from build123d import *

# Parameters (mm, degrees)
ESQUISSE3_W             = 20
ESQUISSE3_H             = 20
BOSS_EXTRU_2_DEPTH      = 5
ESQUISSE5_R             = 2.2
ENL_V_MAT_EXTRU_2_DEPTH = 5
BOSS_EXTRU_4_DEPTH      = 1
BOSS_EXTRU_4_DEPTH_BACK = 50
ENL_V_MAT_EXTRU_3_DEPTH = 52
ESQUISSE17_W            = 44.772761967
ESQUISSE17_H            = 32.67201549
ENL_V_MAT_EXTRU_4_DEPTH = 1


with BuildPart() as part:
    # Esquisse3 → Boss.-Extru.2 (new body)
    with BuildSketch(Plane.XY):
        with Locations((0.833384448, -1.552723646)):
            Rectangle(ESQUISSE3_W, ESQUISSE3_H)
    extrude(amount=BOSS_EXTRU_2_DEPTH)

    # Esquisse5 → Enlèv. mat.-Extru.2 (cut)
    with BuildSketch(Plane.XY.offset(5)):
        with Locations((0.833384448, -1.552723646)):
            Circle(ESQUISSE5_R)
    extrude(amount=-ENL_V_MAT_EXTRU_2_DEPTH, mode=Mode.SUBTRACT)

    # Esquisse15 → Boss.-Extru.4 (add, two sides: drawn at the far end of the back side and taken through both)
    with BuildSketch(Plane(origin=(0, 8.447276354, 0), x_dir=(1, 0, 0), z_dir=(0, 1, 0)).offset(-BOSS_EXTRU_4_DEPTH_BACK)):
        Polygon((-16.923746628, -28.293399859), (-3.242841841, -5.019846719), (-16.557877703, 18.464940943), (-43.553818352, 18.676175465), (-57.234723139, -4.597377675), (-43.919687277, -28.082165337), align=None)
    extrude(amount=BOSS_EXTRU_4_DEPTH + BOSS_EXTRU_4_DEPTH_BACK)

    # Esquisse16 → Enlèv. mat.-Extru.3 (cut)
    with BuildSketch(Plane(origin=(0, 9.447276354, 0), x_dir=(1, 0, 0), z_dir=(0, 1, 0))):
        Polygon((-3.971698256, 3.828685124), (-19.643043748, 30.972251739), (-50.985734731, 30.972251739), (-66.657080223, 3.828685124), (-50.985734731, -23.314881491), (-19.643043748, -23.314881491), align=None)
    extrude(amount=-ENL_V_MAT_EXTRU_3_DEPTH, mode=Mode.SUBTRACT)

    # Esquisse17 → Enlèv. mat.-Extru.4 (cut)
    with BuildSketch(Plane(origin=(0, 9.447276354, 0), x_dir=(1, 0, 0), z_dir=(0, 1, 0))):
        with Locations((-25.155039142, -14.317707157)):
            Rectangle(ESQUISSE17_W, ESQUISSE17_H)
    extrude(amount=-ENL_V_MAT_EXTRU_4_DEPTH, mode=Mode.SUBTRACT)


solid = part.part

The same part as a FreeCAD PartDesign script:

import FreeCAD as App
import Part
import Sketcher
from FreeCAD import Vector
Q = App.Units.Quantity


def add_polygon(sketch, points):
    """Adds a closed chain of lines whose ends are joined by coincident constraints."""
    first, n = sketch.GeometryCount, len(points)
    for a, b in zip(points, points[1:] + points[:1]):
        sketch.addGeometry(Part.LineSegment(App.Vector(*a, 0), App.Vector(*b, 0)), False)
    for i in range(n):
        sketch.addConstraint(Sketcher.Constraint("Coincident", first + i, 2, first + (i + 1) % n, 1))

doc = App.newDocument("Part")
body = doc.addObject("PartDesign::Body", "Body")

sketch1 = doc.addObject("Sketcher::SketchObject", "Sketch")
body.addObject(sketch1)
sketch1.AttachmentSupport = (doc.XY_Plane, [""])
sketch1.MapMode = "FlatFace"
add_polygon(sketch1, [(-9, 8), (-9, -12), (11, -12), (11, 8)])
sketch1.addConstraint([
    Sketcher.Constraint("Vertical", 0),
    Sketcher.Constraint("Horizontal", 1),
    Sketcher.Constraint("Vertical", 2),
    Sketcher.Constraint("Horizontal", 3),
    Sketcher.Constraint("Equal", 3, 0),
    Sketcher.Constraint("DistanceX", 1, 1, 1, 2, Q("20 mm")),
    Sketcher.Constraint("DistanceX", 0, 2, -1, 1, Q("9.166616 mm")),
    Sketcher.Constraint("DistanceY", 0, 2, -1, 1, Q("11.552724 mm")),
])
pad1 = doc.addObject("PartDesign::Pad", "Pad")
body.addObject(pad1)
pad1.Profile = sketch1
pad1.Length = 5

sketch2 = doc.addObject("Sketcher::SketchObject", "Sketch001")
body.addObject(sketch2)
sketch2.AttachmentSupport = (doc.XY_Plane, [""])
sketch2.MapMode = "FlatFace"
sketch2.AttachmentOffset = App.Placement(Vector(0, 0, 5), App.Rotation())
sketch2.addGeometry(Part.Circle(Vector(0.8, -1.6, 0), Vector(0, 0, 1), 2.2), False)
sketch2.addConstraint([
    Sketcher.Constraint("Diameter", 0, Q("4.4 mm")),
    Sketcher.Constraint("DistanceX", -1, 1, 0, 3, Q("0.833384 mm")),
    Sketcher.Constraint("DistanceY", 0, 3, -1, 1, Q("1.552724 mm")),
])
pocket1 = doc.addObject("PartDesign::Pocket", "Pocket")
body.addObject(pocket1)
pocket1.Profile = sketch2
pocket1.Length = 5

sketch3 = doc.addObject("Sketcher::SketchObject", "Sketch002")
body.addObject(sketch3)
sketch3.AttachmentSupport = (doc.XZ_Plane, [""])
sketch3.MapMode = "FlatFace"
sketch3.AttachmentOffset = App.Placement(Vector(0, 0, -8.447276), App.Rotation())
add_polygon(sketch3, [(-17, 28), (-3, 5), (-17, -18), (-44, -19), (-57, 5), (-44, 28)])
sketch3.addConstraint([
    Sketcher.Constraint("Parallel", 0, 3),
    Sketcher.Constraint("Parallel", 1, 4),
    Sketcher.Constraint("Parallel", 2, 5),
    Sketcher.Constraint("Equal", 0, 1),
    Sketcher.Constraint("Equal", 1, 2),
    Sketcher.Constraint("Equal", 2, 3),
    Sketcher.Constraint("DistanceY", -1, 1, 5, 2, Q("28.2934 mm")),
    Sketcher.Constraint("DistanceX", 0, 2, -1, 1, Q("3.242842 mm")),
    Sketcher.Constraint("DistanceY", 1, 2, -1, 1, Q("18.464941 mm")),
    Sketcher.Constraint("DistanceX", 2, 2, -1, 1, Q("43.553818 mm")),
    Sketcher.Constraint("DistanceX", 2, 2, 1, 2, Q("26.995941 mm")),
    Sketcher.Constraint("DistanceY", 1, 2, 3, 2, Q("23.062319 mm")),
])
pad2 = doc.addObject("PartDesign::Pad", "Pad001")
body.addObject(pad2)
pad2.Profile = sketch3
pad2.Type = "TwoLengths"
pad2.Length = 1
pad2.Length2 = 50
pad2.Reversed = True

sketch4 = doc.addObject("Sketcher::SketchObject", "Sketch003")
body.addObject(sketch4)
sketch4.AttachmentSupport = (doc.XZ_Plane, [""])
sketch4.MapMode = "FlatFace"
sketch4.AttachmentOffset = App.Placement(Vector(0, 0, -9.447276), App.Rotation())
add_polygon(sketch4, [(-4, -4), (-20, -31), (-51, -31), (-67, -4), (-51, 23), (-20, 23)])
sketch4.addConstraint([
    Sketcher.Constraint("Horizontal", 1),
    Sketcher.Constraint("Horizontal", 4),
    Sketcher.Constraint("Parallel", 0, 3),
    Sketcher.Constraint("Parallel", 2, 5),
    Sketcher.Constraint("Horizontal", 2, 2, 5, 2),
    Sketcher.Constraint("Vertical", 1, 2, 3, 2),
    Sketcher.Constraint("Vertical", 0, 2, 4, 2),
    Sketcher.Constraint("Angle", 0, Q("-120 deg")),
    Sketcher.Constraint("DistanceX", 1, 2, 1, 1, Q("31.342691 mm")),
    Sketcher.Constraint("DistanceX", 5, 2, -1, 1, Q("3.971698 mm")),
    Sketcher.Constraint("Distance", 0, Q("31.342691 mm")),
    Sketcher.Constraint("DistanceY", 0, 2, -1, 1, Q("30.972252 mm")),
])
pocket2 = doc.addObject("PartDesign::Pocket", "Pocket001")
body.addObject(pocket2)
pocket2.Profile = sketch4
pocket2.Length = 52
pocket2.Reversed = True

sketch5 = doc.addObject("Sketcher::SketchObject", "Sketch004")
body.addObject(sketch5)
sketch5.AttachmentSupport = (doc.XZ_Plane, [""])
sketch5.MapMode = "FlatFace"
sketch5.AttachmentOffset = App.Placement(Vector(0, 0, -9.447276), App.Rotation())
add_polygon(sketch5, [(-48, -2), (-48, 31), (-3, 31), (-3, -2)])
sketch5.addConstraint([
    Sketcher.Constraint("Vertical", 0),
    Sketcher.Constraint("Horizontal", 1),
    Sketcher.Constraint("Vertical", 2),
    Sketcher.Constraint("Horizontal", 3),
    Sketcher.Constraint("DistanceX", 1, 1, 1, 2, Q("44.772762 mm")),
    Sketcher.Constraint("DistanceY", 2, 2, -1, 1, Q("2.018301 mm")),
    Sketcher.Constraint("DistanceY", 0, 1, 0, 2, Q("32.672015 mm")),
    Sketcher.Constraint("DistanceX", 0, 2, -1, 1, Q("47.54142 mm")),
])
pocket3 = doc.addObject("PartDesign::Pocket", "Pocket002")
body.addObject(pocket3)
pocket3.Profile = sketch5
pocket3.Length = 1
pocket3.Reversed = True

doc.recompute()
